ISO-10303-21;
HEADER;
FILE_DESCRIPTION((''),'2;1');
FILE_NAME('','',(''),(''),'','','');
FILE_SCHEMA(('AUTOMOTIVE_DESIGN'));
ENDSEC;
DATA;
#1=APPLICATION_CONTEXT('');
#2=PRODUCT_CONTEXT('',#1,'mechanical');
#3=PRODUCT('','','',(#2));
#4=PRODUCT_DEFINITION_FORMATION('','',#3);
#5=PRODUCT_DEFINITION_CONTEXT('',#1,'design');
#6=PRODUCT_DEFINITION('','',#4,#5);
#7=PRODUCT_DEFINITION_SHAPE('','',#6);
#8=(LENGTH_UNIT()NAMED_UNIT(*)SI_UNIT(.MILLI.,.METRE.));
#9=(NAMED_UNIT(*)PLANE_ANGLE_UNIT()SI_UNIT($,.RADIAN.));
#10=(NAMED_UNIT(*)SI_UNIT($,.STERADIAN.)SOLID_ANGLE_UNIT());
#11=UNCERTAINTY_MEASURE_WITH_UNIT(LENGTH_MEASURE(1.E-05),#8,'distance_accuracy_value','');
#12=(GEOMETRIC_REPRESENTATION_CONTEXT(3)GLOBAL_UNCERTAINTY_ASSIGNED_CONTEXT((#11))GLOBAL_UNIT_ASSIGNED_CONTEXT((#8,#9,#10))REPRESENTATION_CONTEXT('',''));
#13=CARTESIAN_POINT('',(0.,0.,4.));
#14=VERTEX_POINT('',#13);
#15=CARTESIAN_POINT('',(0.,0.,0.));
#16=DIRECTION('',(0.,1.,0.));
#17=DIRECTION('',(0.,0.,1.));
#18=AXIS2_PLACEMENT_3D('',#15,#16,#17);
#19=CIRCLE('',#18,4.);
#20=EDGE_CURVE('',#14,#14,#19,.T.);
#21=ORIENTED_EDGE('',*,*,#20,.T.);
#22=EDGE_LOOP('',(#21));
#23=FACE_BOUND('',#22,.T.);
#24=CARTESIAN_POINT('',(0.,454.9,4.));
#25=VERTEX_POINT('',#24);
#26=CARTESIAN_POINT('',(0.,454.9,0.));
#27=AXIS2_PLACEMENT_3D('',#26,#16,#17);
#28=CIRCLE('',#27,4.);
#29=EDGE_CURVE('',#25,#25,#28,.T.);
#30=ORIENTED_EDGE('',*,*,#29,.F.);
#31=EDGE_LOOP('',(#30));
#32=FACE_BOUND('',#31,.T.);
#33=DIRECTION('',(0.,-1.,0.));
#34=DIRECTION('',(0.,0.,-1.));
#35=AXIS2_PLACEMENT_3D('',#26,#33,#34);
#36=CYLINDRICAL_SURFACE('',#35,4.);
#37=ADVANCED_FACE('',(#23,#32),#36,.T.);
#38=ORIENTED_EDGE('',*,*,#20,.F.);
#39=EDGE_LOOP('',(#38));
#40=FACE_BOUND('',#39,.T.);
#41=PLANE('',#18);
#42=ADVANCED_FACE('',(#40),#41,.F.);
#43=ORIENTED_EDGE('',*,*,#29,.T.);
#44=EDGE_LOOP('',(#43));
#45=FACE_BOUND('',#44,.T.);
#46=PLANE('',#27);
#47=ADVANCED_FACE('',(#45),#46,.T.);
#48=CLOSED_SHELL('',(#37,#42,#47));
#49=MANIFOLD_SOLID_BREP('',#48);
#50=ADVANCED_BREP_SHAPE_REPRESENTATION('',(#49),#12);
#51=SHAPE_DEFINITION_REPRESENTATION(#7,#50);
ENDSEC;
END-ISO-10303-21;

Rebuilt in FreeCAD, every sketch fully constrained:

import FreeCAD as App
import Part
import Sketcher
from FreeCAD import Vector
Q = App.Units.Quantity

doc = App.newDocument("Part")
body = doc.addObject("PartDesign::Body", "Body")

sketch1 = body.newObject("Sketcher::SketchObject", "Sketch")
sketch1.AttachmentSupport = (doc.getObject("XZ_Plane"), [""])
sketch1.MapMode = "FlatFace"
sketch1.addGeometry(Part.Circle(Vector(0, 0, 0), Vector(0, 0, 1), 4), False)
sketch1.addConstraint(Sketcher.Constraint("Coincident", 0, 3, -1, 1))
sketch1.addConstraint(Sketcher.Constraint("Diameter", 0, Q("8 mm")))
pad1 = body.newObject("PartDesign::Pad", "Pad")
pad1.Profile = sketch1
pad1.Length = 454.9
pad1.Reversed = True

doc.recompute()
